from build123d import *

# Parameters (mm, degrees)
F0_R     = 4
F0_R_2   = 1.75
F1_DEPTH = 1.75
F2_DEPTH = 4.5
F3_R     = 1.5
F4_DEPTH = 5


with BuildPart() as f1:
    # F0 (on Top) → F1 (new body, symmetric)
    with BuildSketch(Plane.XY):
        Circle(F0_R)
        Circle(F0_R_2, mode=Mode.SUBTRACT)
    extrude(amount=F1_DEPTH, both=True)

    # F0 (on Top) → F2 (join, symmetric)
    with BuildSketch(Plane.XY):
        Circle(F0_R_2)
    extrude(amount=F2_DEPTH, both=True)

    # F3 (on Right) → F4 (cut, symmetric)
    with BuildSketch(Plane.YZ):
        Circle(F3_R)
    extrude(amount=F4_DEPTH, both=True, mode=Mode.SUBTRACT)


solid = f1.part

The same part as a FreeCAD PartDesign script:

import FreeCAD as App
import Part
import Sketcher

V = App.Vector

doc = App.newDocument("Part")
body = doc.addObject("PartDesign::Body", "Body")

# Sketch on XY plane
sketch1 = body.newObject("Sketcher::SketchObject", "Sketch")
sketch1.AttachmentSupport = (doc.getObject("XY_Plane"), [""])
sketch1.MapMode = "FlatFace"
sketch1.addGeometry(Part.Circle(V(0, 0, 0), V(0, 0, 1), 4), False)
sketch1.addGeometry(Part.Circle(V(0, 0, 0), V(0, 0, 1), 1.8), False)
sketch1.addConstraint(Sketcher.Constraint("Coincident", 0, 3, -1, 1))
sketch1.addConstraint(Sketcher.Constraint("Coincident", 1, 3, -1, 1))
sketch1.addConstraint(Sketcher.Constraint("Diameter", 0, 8.0))
sketch1.addConstraint(Sketcher.Constraint("Diameter", 1, 3.5))
pad1 = body.newObject("PartDesign::Pad", "Pad")
pad1.Profile = sketch1
pad1.Length = 3.5
pad1.Midplane = True

# Sketch on XY plane
sketch2 = body.newObject("Sketcher::SketchObject", "Sketch001")
sketch2.AttachmentSupport = (doc.getObject("XY_Plane"), [""])
sketch2.MapMode = "FlatFace"
sketch2.addGeometry(Part.Circle(V(0, 0, 0), V(0, 0, 1), 1.8), False)
sketch2.addConstraint(Sketcher.Constraint("Coincident", 0, 3, -1, 1))
sketch2.addConstraint(Sketcher.Constraint("Diameter", 0, 3.5))
pad2 = body.newObject("PartDesign::Pad", "Pad001")
pad2.Profile = sketch2
pad2.Length = 9
pad2.Midplane = True

# Sketch on YZ plane
sketch3 = body.newObject("Sketcher::SketchObject", "Sketch002")
sketch3.AttachmentSupport = (doc.getObject("YZ_Plane"), [""])
sketch3.MapMode = "FlatFace"
sketch3.addGeometry(Part.Circle(V(0, 0, 0), V(0, 0, 1), 1.5), False)
sketch3.addConstraint(Sketcher.Constraint("Coincident", 0, 3, -1, 1))
sketch3.addConstraint(Sketcher.Constraint("Diameter", 0, 3.0))
pocket1 = body.newObject("PartDesign::Pocket", "Pocket")
pocket1.Profile = sketch3
pocket1.Length = 10
pocket1.Midplane = True

doc.recompute()
